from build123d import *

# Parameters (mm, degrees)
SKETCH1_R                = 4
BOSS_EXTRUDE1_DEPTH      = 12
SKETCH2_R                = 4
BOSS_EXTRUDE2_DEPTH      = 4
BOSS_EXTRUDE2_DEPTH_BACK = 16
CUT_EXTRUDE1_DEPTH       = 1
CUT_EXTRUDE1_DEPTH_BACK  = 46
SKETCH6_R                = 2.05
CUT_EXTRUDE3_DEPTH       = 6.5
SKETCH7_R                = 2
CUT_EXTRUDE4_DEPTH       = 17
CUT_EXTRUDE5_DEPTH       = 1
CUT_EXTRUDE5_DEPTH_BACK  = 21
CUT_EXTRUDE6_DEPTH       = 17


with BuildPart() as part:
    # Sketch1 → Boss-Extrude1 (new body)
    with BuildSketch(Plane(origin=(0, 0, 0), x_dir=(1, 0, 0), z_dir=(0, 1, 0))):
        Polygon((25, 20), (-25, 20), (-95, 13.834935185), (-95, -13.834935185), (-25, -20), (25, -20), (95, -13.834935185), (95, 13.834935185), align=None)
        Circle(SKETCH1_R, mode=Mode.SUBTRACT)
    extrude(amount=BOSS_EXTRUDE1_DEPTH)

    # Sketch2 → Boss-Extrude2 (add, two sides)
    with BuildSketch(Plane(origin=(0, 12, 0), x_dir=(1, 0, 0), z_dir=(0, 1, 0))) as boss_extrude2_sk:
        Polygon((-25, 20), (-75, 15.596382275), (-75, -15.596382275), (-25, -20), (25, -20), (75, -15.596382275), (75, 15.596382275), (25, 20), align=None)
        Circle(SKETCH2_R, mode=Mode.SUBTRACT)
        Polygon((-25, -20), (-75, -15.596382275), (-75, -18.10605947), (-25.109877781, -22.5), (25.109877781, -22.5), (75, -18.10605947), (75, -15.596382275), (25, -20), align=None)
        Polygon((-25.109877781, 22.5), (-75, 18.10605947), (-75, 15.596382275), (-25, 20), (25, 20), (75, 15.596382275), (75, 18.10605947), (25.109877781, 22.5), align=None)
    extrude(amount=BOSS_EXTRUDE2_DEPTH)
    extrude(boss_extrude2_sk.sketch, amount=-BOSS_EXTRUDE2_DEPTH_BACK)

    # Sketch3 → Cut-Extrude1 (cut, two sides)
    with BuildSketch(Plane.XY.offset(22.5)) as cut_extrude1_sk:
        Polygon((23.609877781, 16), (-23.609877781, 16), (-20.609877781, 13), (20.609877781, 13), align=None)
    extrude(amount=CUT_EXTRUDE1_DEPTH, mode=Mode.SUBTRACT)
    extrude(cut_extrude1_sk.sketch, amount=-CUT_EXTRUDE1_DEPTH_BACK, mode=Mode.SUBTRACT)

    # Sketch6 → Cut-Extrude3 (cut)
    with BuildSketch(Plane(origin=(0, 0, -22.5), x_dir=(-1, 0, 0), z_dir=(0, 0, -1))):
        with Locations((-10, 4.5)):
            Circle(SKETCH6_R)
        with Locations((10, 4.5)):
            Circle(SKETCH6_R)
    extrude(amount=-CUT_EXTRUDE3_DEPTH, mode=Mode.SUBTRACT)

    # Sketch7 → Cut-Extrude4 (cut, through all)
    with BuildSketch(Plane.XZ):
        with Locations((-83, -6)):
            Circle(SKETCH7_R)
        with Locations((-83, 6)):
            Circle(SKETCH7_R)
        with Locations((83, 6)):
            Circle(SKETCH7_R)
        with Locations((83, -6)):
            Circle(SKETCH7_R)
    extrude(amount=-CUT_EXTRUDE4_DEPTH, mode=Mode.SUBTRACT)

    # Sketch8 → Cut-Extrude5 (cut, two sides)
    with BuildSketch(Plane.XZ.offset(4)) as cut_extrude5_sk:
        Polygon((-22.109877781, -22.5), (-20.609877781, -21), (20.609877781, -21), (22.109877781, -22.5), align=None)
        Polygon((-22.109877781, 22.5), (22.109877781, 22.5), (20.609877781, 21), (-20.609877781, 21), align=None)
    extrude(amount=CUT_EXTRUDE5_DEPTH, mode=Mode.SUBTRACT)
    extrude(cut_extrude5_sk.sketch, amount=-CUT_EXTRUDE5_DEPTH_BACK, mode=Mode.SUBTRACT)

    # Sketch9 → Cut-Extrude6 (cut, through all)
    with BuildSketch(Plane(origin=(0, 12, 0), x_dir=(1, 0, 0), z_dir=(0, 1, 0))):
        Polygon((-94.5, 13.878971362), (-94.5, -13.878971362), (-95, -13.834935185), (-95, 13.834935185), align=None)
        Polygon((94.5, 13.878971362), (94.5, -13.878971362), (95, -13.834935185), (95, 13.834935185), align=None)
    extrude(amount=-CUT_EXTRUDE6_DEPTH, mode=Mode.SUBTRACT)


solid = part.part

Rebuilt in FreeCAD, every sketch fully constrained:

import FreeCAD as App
import Part
import Sketcher
Q = App.Units.Quantity


def add_polygon(sketch, points):
    """Adds a closed chain of lines whose ends are joined by coincident constraints."""
    first, n = sketch.GeometryCount, len(points)
    for a, b in zip(points, points[1:] + points[:1]):
        sketch.addGeometry(Part.LineSegment(App.Vector(*a, 0), App.Vector(*b, 0)), False)
    for i in range(n):
        sketch.addConstraint(Sketcher.Constraint("Coincident", first + i, 2, first + (i + 1) % n, 1))

doc = App.newDocument("Part")
body = doc.addObject("PartDesign::Body", "Body")

# Sketch on XZ plane
sketch1 = body.newObject("Sketcher::SketchObject", "Sketch")
sketch1.AttachmentSupport = (doc.getObject("XZ_Plane"), [""])
sketch1.MapMode = "FlatFace"
add_polygon(sketch1, [(25, -20), (-25, -20), (-95, -13.8), (-95, 13.8), (-25, 20), (25, 20), (95, 13.8), (95, -13.8)])  # lines 0-7
sketch1.addGeometry(Part.Circle(App.Vector(0, 0, 0), App.Vector(0, 0, 1), 4), False)  # 8
sketch1.addConstraint([
    Sketcher.Constraint("Horizontal", 0),
    Sketcher.Constraint("Vertical", 2),
    Sketcher.Constraint("Horizontal", 4),
    Sketcher.Constraint("Vertical", 6),
    Sketcher.Constraint("Coincident", 8, 3, -1, 1),
    Sketcher.Constraint("Symmetric", 0, 2, 4, 2, -1, 1),
    Sketcher.Constraint("Symmetric", 1, 2, 5, 2, -1, 1),
    Sketcher.Constraint("Parallel", 3, 7),
    Sketcher.Constraint("Horizontal", 2, 2, 5, 2),
    Sketcher.Constraint("Horizontal", 1, 2, 6, 2),
    Sketcher.Constraint("Vertical", 0, 2, 3, 2),
    Sketcher.Constraint("Diameter", 8, Q("8 mm")),
    Sketcher.Constraint("DistanceX", 0, 2, 0, 1, Q("50 mm")),
    Sketcher.Constraint("DistanceY", 0, 2, -1, 1, Q("20 mm")),
    Sketcher.Constraint("DistanceX", 1, 2, -1, 1, Q("95 mm")),
    Sketcher.Constraint("DistanceY", 2, 1, 2, 2, Q("27.66987 mm")),
])
pad1 = body.newObject("PartDesign::Pad", "Pad")
pad1.Profile = sketch1
pad1.Length = 12
pad1.Reversed = True

# Sketch on XZ plane
sketch2 = body.newObject("Sketcher::SketchObject", "Sketch001")
sketch2.AttachmentSupport = (doc.getObject("XZ_Plane"), [""])
sketch2.MapMode = "FlatFace"
sketch2.AttachmentOffset = App.Placement(App.Vector(0, 0, -12), App.Rotation())
add_polygon(sketch2, [(-75, 18.1), (-25.1, 22.5), (25.1, 22.5), (75, 18.1), (75, -18.1), (25.1, -22.5), (-25.1, -22.5), (-75, -18.1)])  # lines 0-7
sketch2.addGeometry(Part.Circle(App.Vector(0, 0, 0), App.Vector(0, 0, 1), 4), False)  # 8
sketch2.addConstraint([
    Sketcher.Constraint("Horizontal", 1),
    Sketcher.Constraint("Vertical", 3),
    Sketcher.Constraint("Horizontal", 5),
    Sketcher.Constraint("Vertical", 7),
    Sketcher.Constraint("Coincident", 8, 3, -1, 1),
    Sketcher.Constraint("Symmetric", 0, 2, 4, 2, -1, 1),
    Sketcher.Constraint("Symmetric", 2, 2, 6, 2, -1, 1),
    Sketcher.Constraint("Parallel", 0, 4),
    Sketcher.Constraint("Parallel", 2, 6),
    Sketcher.Constraint("Horizontal", 3, 2, 6, 2),
    Sketcher.Constraint("Vertical", 1, 2, 4, 2),
    Sketcher.Constraint("Diameter", 8, Q("8 mm")),
    Sketcher.Constraint("DistanceX", -1, 1, 2, 2, Q("75 mm")),
    Sketcher.Constraint("DistanceY", 4, 2, 1, 2, Q("45 mm")),
    Sketcher.Constraint("DistanceY", 3, 2, 3, 1, Q("36.212119 mm")),
    Sketcher.Constraint("Distance", 0, Q("50.083241 mm")),
])
pad2 = body.newObject("PartDesign::Pad", "Pad001")
pad2.Profile = sketch2
pad2.Type = "TwoLengths"
pad2.Length = 4
pad2.Length2 = 16
pad2.Reversed = True

# Sketch on XY plane
sketch3 = body.newObject("Sketcher::SketchObject", "Sketch002")
sketch3.AttachmentSupport = (doc.getObject("XY_Plane"), [""])
sketch3.MapMode = "FlatFace"
sketch3.AttachmentOffset = App.Placement(App.Vector(0, 0, 22.5), App.Rotation())
add_polygon(sketch3, [(23.6, 16), (-23.6, 16), (-20.6, 13), (20.6, 13)])  # lines 0-3
sketch3.addConstraint([
    Sketcher.Constraint("Horizontal", 0),
    Sketcher.Constraint("Horizontal", 2),
    Sketcher.Constraint("Perpendicular", 1, 3),
    Sketcher.Constraint("Equal", 1, 3),
    Sketcher.Constraint("DistanceY", -1, 1, 0, 2, Q("16 mm")),
    Sketcher.Constraint("DistanceY", -1, 1, 1, 2, Q("13 mm")),
    Sketcher.Constraint("DistanceX", 0, 2, 0, 1, Q("47.219756 mm")),
    Sketcher.Constraint("DistanceX", 0, 2, -1, 1, Q("23.609878 mm")),
])
pocket1 = body.newObject("PartDesign::Pocket", "Pocket")
pocket1.Profile = sketch3
pocket1.Type = "ThroughAll"
pocket1.Midplane = True

# Sketch on XY plane
sketch4 = body.newObject("Sketcher::SketchObject", "Sketch003")
sketch4.AttachmentSupport = (doc.getObject("XY_Plane"), [""])
sketch4.MapMode = "FlatFace"
sketch4.AttachmentOffset = App.Placement(App.Vector(0, 0, -22.5), App.Rotation())
sketch4.addGeometry([
    Part.Circle(App.Vector(10, 4.5, 0), App.Vector(0, 0, 1), 2),
    Part.Circle(App.Vector(-10, 4.5, 0), App.Vector(0, 0, 1), 2),
], False)
sketch4.addConstraint([
    Sketcher.Constraint("Equal", 0, 1),
    Sketcher.Constraint("Symmetric", 0, 3, 1, 3, -2),
    Sketcher.Constraint("Diameter", 0, Q("4.1 mm")),
    Sketcher.Constraint("DistanceX", -1, 1, 0, 3, Q("10 mm")),
    Sketcher.Constraint("DistanceY", -1, 1, 0, 3, Q("4.5 mm")),
])
pocket2 = body.newObject("PartDesign::Pocket", "Pocket001")
pocket2.Profile = sketch4
pocket2.Length = 6.5
pocket2.Reversed = True

# Sketch on XZ plane
sketch5 = body.newObject("Sketcher::SketchObject", "Sketch004")
sketch5.AttachmentSupport = (doc.getObject("XZ_Plane"), [""])
sketch5.MapMode = "FlatFace"
sketch5.addGeometry([
    Part.Circle(App.Vector(-83, -6, 0), App.Vector(0, 0, 1), 2),
    Part.Circle(App.Vector(-83, 6, 0), App.Vector(0, 0, 1), 2),
    Part.Circle(App.Vector(83, 6, 0), App.Vector(0, 0, 1), 2),
    Part.Circle(App.Vector(83, -6, 0), App.Vector(0, 0, 1), 2),
], False)
sketch5.addConstraint([
    Sketcher.Constraint("Equal", 0, 1),
    Sketcher.Constraint("Equal", 1, 2),
    Sketcher.Constraint("Equal", 2, 3),
    Sketcher.Constraint("Symmetric", 0, 3, 2, 3, -1, 1),
    Sketcher.Constraint("Symmetric", 1, 3, 3, 3, -1, 1),
    Sketcher.Constraint("Symmetric", 1, 3, 2, 3, -2),
    Sketcher.Constraint("Diameter", 0, Q("4 mm")),
    Sketcher.Constraint("DistanceX", 0, 3, -1, 1, Q("83 mm")),
    Sketcher.Constraint("DistanceY", 0, 3, -1, 1, Q("6 mm")),
])
pocket3 = body.newObject("PartDesign::Pocket", "Pocket002")
pocket3.Profile = sketch5
pocket3.Type = "ThroughAll"

# Sketch on XZ plane
sketch6 = body.newObject("Sketcher::SketchObject", "Sketch005")
sketch6.AttachmentSupport = (doc.getObject("XZ_Plane"), [""])
sketch6.MapMode = "FlatFace"
sketch6.AttachmentOffset = App.Placement(App.Vector(0, 0, 4), App.Rotation())
add_polygon(sketch6, [(-20.6, -21), (-22.1, -22.5), (22.1, -22.5), (20.6, -21)])  # lines 0-3
add_polygon(sketch6, [(22.1, 22.5), (-22.1, 22.5), (-20.6, 21), (20.6, 21)])  # lines 4-7
sketch6.addConstraint([
    Sketcher.Constraint("Horizontal", 1),
    Sketcher.Constraint("Horizontal", 3),
    Sketcher.Constraint("Horizontal", 4),
    Sketcher.Constraint("Horizontal", 6),
    Sketcher.Constraint("Symmetric", 1, 2, 4, 2, -1, 1),
    Sketcher.Constraint("Symmetric", 2, 2, 5, 2, -1, 1),
    Sketcher.Constraint("Perpendicular", 0, 2),
    Sketcher.Constraint("Perpendicular", 5, 7),
    Sketcher.Constraint("Vertical", 0, 2, 4, 2),
    Sketcher.Constraint("Vertical", 3, 2, 5, 2),
    Sketcher.Constraint("Vertical", 2, 2, 6, 2),
    Sketcher.Constraint("DistanceY", 2, 2, -1, 1, Q("21 mm")),
    Sketcher.Constraint("DistanceY", 0, 2, 4, 2, Q("45 mm")),
    Sketcher.Constraint("DistanceX", 1, 1, 1, 2, Q("44.219756 mm")),
])
pocket4 = body.newObject("PartDesign::Pocket", "Pocket003")
pocket4.Profile = sketch6
pocket4.Type = "ThroughAll"
pocket4.Midplane = True

# Sketch on XZ plane
sketch7 = body.newObject("Sketcher::SketchObject", "Sketch006")
sketch7.AttachmentSupport = (doc.getObject("XZ_Plane"), [""])
sketch7.MapMode = "FlatFace"
sketch7.AttachmentOffset = App.Placement(App.Vector(0, 0, -12), App.Rotation())
add_polygon(sketch7, [(-94.5, 13.9), (-94.5, -13.9), (-95, -13.8), (-95, 13.8)])  # lines 0-3
add_polygon(sketch7, [(94.5, -13.9), (94.5, 13.9), (95, 13.8), (95, -13.8)])  # lines 4-7
sketch7.addConstraint([
    Sketcher.Constraint("Vertical", 0),
    Sketcher.Constraint("Vertical", 2),
    Sketcher.Constraint("Vertical", 4),
    Sketcher.Constraint("Vertical", 6),
    Sketcher.Constraint("Symmetric", 0, 2, 4, 2, -1, 1),
    Sketcher.Constraint("Symmetric", 1, 2, 5, 2, -1, 1),
    Sketcher.Constraint("Parallel", 3, 7),
    Sketcher.Constraint("Horizontal", 3, 2, 4, 2),
    Sketcher.Constraint("Horizontal", 2, 2, 5, 2),
    Sketcher.Constraint("Horizontal", 1, 2, 6, 2),
    Sketcher.Constraint("DistanceX", 1, 2, -1, 1, Q("95 mm")),
    Sketcher.Constraint("DistanceX", 3, 2, 4, 2, Q("189 mm")),
    Sketcher.Constraint("DistanceY", 2, 1, 2, 2, Q("27.66987 mm")),
    Sketcher.Constraint("DistanceY", 0, 2, 0, 1, Q("27.757943 mm")),
])
pocket5 = body.newObject("PartDesign::Pocket", "Pocket004")
pocket5.Profile = sketch7
pocket5.Type = "ThroughAll"
pocket5.Reversed = True

doc.recompute()
